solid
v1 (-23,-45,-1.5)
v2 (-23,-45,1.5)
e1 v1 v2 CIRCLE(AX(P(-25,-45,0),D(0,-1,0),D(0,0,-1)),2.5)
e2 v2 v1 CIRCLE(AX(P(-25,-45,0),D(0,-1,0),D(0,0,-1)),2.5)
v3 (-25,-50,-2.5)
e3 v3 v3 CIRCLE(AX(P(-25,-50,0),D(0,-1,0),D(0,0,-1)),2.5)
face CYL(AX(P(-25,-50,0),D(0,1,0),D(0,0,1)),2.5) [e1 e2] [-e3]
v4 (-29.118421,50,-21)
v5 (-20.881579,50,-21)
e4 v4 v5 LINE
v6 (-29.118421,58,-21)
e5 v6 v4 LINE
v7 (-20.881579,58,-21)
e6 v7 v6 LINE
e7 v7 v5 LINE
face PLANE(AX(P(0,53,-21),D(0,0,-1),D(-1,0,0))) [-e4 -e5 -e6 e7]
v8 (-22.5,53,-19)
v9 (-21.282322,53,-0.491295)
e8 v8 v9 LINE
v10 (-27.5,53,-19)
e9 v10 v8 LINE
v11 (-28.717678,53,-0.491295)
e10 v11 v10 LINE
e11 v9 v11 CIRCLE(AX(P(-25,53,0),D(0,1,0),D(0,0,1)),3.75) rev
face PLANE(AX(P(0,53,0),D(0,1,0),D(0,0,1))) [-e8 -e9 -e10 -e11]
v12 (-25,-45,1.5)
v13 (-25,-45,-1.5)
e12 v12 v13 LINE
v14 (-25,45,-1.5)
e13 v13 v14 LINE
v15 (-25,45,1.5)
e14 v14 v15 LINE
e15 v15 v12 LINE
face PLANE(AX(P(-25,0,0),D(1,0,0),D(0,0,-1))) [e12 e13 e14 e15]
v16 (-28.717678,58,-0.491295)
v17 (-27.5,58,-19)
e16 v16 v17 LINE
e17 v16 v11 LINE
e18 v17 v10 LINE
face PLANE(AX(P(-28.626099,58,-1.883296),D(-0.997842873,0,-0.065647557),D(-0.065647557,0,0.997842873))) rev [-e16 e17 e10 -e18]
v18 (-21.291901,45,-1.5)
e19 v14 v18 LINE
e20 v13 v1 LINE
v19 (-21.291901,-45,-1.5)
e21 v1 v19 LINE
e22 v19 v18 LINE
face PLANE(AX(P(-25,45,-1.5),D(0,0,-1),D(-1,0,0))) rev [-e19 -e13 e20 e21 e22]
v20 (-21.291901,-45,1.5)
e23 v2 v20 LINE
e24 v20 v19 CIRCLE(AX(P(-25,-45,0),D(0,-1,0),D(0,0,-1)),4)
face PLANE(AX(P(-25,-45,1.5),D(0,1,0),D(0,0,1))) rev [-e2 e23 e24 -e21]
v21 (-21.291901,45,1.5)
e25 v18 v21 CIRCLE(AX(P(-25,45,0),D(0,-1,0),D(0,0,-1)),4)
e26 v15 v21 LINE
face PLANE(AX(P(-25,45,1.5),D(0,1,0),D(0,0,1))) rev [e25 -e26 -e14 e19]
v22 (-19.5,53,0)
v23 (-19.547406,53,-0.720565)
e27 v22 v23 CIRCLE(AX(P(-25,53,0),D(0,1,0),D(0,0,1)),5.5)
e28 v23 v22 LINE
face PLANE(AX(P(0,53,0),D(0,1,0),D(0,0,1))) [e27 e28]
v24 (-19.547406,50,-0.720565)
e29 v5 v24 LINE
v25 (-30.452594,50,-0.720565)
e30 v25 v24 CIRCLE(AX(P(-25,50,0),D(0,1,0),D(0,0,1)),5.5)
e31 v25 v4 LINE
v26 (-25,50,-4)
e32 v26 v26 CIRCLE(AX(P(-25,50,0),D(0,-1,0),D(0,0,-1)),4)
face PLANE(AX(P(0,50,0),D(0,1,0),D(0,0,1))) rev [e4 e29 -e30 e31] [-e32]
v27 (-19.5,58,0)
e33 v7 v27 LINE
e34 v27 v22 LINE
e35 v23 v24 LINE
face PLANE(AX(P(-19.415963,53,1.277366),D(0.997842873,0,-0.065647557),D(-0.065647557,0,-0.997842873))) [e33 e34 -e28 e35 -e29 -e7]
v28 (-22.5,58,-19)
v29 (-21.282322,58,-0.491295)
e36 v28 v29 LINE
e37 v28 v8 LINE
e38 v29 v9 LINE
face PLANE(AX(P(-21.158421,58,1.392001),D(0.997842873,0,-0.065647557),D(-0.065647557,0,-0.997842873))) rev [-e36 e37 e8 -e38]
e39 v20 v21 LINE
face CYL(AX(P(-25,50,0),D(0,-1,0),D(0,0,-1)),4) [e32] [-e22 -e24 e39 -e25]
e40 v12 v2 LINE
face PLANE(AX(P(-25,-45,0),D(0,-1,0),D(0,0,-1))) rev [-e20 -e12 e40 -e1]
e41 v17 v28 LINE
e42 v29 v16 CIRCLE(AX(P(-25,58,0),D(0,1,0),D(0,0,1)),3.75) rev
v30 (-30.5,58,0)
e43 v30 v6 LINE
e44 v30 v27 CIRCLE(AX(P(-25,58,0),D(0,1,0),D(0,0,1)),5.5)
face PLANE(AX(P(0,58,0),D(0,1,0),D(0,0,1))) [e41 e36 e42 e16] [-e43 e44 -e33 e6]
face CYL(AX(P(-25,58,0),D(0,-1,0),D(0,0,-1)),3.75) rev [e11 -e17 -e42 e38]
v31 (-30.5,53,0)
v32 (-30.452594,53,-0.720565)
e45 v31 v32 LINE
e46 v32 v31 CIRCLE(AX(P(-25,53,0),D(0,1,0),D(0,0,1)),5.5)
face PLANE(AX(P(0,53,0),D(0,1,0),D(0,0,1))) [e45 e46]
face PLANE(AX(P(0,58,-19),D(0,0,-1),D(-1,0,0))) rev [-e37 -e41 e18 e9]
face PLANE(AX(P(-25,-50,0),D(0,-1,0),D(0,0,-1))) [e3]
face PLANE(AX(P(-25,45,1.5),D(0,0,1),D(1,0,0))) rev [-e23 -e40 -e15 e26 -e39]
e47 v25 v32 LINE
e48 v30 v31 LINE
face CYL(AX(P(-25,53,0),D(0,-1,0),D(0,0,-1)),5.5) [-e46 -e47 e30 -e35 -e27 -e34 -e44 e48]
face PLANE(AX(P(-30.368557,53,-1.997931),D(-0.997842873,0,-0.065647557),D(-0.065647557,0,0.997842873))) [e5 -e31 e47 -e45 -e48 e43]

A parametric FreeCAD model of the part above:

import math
import FreeCAD as App
import Part
import Sketcher
Q = App.Units.Quantity


def add_polygon(sketch, points):
    """Adds a closed chain of lines whose ends are joined by coincident constraints."""
    first, n = sketch.GeometryCount, len(points)
    for a, b in zip(points, points[1:] + points[:1]):
        sketch.addGeometry(Part.LineSegment(App.Vector(*a, 0), App.Vector(*b, 0)), False)
    for i in range(n):
        sketch.addConstraint(Sketcher.Constraint("Coincident", first + i, 2, first + (i + 1) % n, 1))

doc = App.newDocument("Part")
params = doc.addObject("Spreadsheet::Sheet", "Params")
for row, (alias, value) in enumerate([
    ("sketch1_width", "50 mm"),
    ("sketch1_height", "90 mm"),
    ("pad1_length", "3 mm"),
    ("sketch2_diameter", "8 mm"),
    ("pad2_length", "45 mm"),
    ("pad2_length2", "50 mm"),
    ("sketch3_radius", "5.5 mm"),
    ("pad3_length", "3 mm"),
    ("sketch4_radius", "5.5 mm"),
    ("sketch4_width", "5 mm"),
    ("sketch4_radius2", "3.75 mm"),
    ("pad4_length", "5 mm"),
    ("sketch5_width", "90 mm"),
    ("sketch5_height", "3 mm"),
    ("pocket1_length", "50 mm"),
    ("sketch6_diameter", "5 mm"),
    ("pad5_length", "5 mm"),
], start=1):
    params.set(f"A{row}", alias)
    params.set(f"B{row}", "=" + value)
    params.setAlias(f"B{row}", alias)

body = doc.addObject("PartDesign::Body", "Body")

# Sketch on XY plane
sketch1 = body.newObject("Sketcher::SketchObject", "Sketch")
sketch1.AttachmentSupport = (doc.getObject("XY_Plane"), [""])
sketch1.MapMode = "FlatFace"
add_polygon(sketch1, [(-25, 45), (-25, -45), (25, -45), (25, 45)])  # lines 0-3
sketch1.addConstraint([
    Sketcher.Constraint("Vertical", 0),
    Sketcher.Constraint("Horizontal", 1),
    Sketcher.Constraint("Vertical", 2),
    Sketcher.Constraint("Horizontal", 3),
    Sketcher.Constraint("Symmetric", 0, 2, 2, 2, -1, 1),
    Sketcher.Constraint("DistanceX", 1, 1, 1, 2, Q("50 mm")),
    Sketcher.Constraint("DistanceY", 0, 2, 0, 1, Q("90 mm")),
])
sketch1.setExpression("Constraints[9]", "Params.sketch1_width")
sketch1.setExpression("Constraints[10]", "Params.sketch1_height")
pad1 = body.newObject("PartDesign::Pad", "Pad")
pad1.Profile = sketch1
pad1.setExpression("Length", "Params.pad1_length")
pad1.Midplane = True

# Sketch on XZ plane
sketch2 = body.newObject("Sketcher::SketchObject", "Sketch001")
sketch2.AttachmentSupport = (doc.getObject("XZ_Plane"), [""])
sketch2.MapMode = "FlatFace"
sketch2.addGeometry(Part.Circle(App.Vector(-25, 0, 0), App.Vector(0, 0, 1), 4), False)
sketch2.addConstraint([
    Sketcher.Constraint("PointOnObject", 0, 3, -1),
    Sketcher.Constraint("Diameter", 0, Q("8 mm")),
    Sketcher.Constraint("DistanceX", 0, 3, -1, 1, Q("25 mm")),
])
sketch2.setExpression("Constraints[1]", "Params.sketch2_diameter")
pad2 = body.newObject("PartDesign::Pad", "Pad001")
pad2.Profile = sketch2
pad2.Type = "TwoLengths"
pad2.setExpression("Length", "Params.pad2_length")
pad2.setExpression("Length2", "Params.pad2_length2")

# Sketch on XZ plane
sketch3 = body.newObject("Sketcher::SketchObject", "Sketch002")
sketch3.AttachmentSupport = (doc.getObject("XZ_Plane"), [""])
sketch3.MapMode = "FlatFace"
sketch3.AttachmentOffset = App.Placement(App.Vector(0, 0, -50), App.Rotation())
sketch3.addGeometry([
    Part.ArcOfCircle(Part.Circle(App.Vector(-25, 0, 0), App.Vector(0, 0, 1), 5.5), math.radians(-7.52807), math.radians(187.52807)),
    Part.LineSegment(App.Vector(-19.547406, -0.720565, 0), App.Vector(-20.881579, -21, 0)),
    Part.LineSegment(App.Vector(-20.881579, -21, 0), App.Vector(-29.118421, -21, 0)),
    Part.LineSegment(App.Vector(-29.118421, -21, 0), App.Vector(-30.452594, -0.720565, 0)),
], False)
sketch3.addConstraint([
    Sketcher.Constraint("Coincident", 0, 1, 1, 1),
    Sketcher.Constraint("Coincident", 1, 2, 2, 1),
    Sketcher.Constraint("Coincident", 2, 2, 3, 1),
    Sketcher.Constraint("Coincident", 3, 2, 0, 2),
    Sketcher.Constraint("Horizontal", 2),
    Sketcher.Constraint("PointOnObject", 0, 3, -1),
    Sketcher.Constraint("Horizontal", 0, 1, 3, 2),
    Sketcher.Constraint("Equal", 1, 3),
    Sketcher.Constraint("Radius", 0, Q("5.5 mm")),
    Sketcher.Constraint("DistanceX", 0, 3, -1, 1, Q("25 mm")),
    Sketcher.Constraint("DistanceY", 1, 2, -1, 1, Q("21 mm")),
    Sketcher.Constraint("DistanceX", 2, 2, 2, 1, Q("8.236842 mm")),
    Sketcher.Constraint("DistanceX", 3, 2, 0, 1, Q("10.905189 mm")),
])
sketch3.setExpression("Constraints[8]", "Params.sketch3_radius")
pad3 = body.newObject("PartDesign::Pad", "Pad002")
pad3.Profile = sketch3
pad3.setExpression("Length", "Params.pad3_length")
pad3.Reversed = True

# Sketch on XZ plane
sketch4 = body.newObject("Sketcher::SketchObject", "Sketch003")
sketch4.AttachmentSupport = (doc.getObject("XZ_Plane"), [""])
sketch4.MapMode = "FlatFace"
sketch4.AttachmentOffset = App.Placement(App.Vector(0, 0, -53), App.Rotation())
sketch4.addGeometry([
    Part.LineSegment(App.Vector(-30.5, 0, 0), App.Vector(-29.118421, -21, 0)),  # 0
    Part.LineSegment(App.Vector(-29.118421, -21, 0), App.Vector(-20.881579, -21, 0)),  # 1
    Part.LineSegment(App.Vector(-20.881579, -21, 0), App.Vector(-19.5, 0, 0)),  # 2
    Part.ArcOfCircle(Part.Circle(App.Vector(-25, 0, 0), App.Vector(0, 0, 1), 5.5), math.radians(0), math.radians(180)),  # 3
    Part.LineSegment(App.Vector(-27.5, -19, 0), App.Vector(-28.717678, -0.491295, 0)),  # 4
    Part.ArcOfCircle(Part.Circle(App.Vector(-25, 0, 0), App.Vector(0, 0, 1), 3.75), math.radians(-7.52807), math.radians(187.52807)),  # 5
    Part.LineSegment(App.Vector(-21.282322, -0.491295, 0), App.Vector(-22.5, -19, 0)),  # 6
    Part.LineSegment(App.Vector(-22.5, -19, 0), App.Vector(-27.5, -19, 0)),  # 7
], False)
sketch4.addConstraint([
    Sketcher.Constraint("Coincident", 0, 2, 1, 1),
    Sketcher.Constraint("Coincident", 1, 2, 2, 1),
    Sketcher.Constraint("Coincident", 2, 2, 3, 1),
    Sketcher.Constraint("Coincident", 3, 2, 0, 1),
    Sketcher.Constraint("Coincident", 4, 2, 5, 2),
    Sketcher.Constraint("Coincident", 5, 1, 6, 1),
    Sketcher.Constraint("Coincident", 6, 2, 7, 1),
    Sketcher.Constraint("Coincident", 7, 2, 4, 1),
    Sketcher.Constraint("Horizontal", 1),
    Sketcher.Constraint("Horizontal", 7),
    Sketcher.Constraint("Coincident", 5, 3, 3, 3),
    Sketcher.Constraint("PointOnObject", 3, 3, -1),
    Sketcher.Constraint("PointOnObject", 2, 2, -1),
    Sketcher.Constraint("PointOnObject", 3, 2, -1),
    Sketcher.Constraint("Parallel", 0, 4),
    Sketcher.Constraint("Parallel", 2, 6),
    Sketcher.Constraint("Horizontal", 4, 2, 5, 1),
    Sketcher.Constraint("Equal", 0, 2),
    Sketcher.Constraint("Radius", 3, Q("5.5 mm")),
    Sketcher.Constraint("DistanceX", 7, 2, 7, 1, Q("5 mm")),
    Sketcher.Constraint("Radius", 5, Q("3.75 mm")),
    Sketcher.Constraint("DistanceX", 3, 3, -1, 1, Q("25 mm")),
    Sketcher.Constraint("DistanceY", 0, 2, -1, 1, Q("21 mm")),
    Sketcher.Constraint("DistanceY", 6, 2, -1, 1, Q("19 mm")),
    Sketcher.Constraint("DistanceX", 1, 1, 1, 2, Q("8.236842 mm")),
])
sketch4.setExpression("Constraints[18]", "Params.sketch4_radius")
sketch4.setExpression("Constraints[19]", "Params.sketch4_width")
sketch4.setExpression("Constraints[20]", "Params.sketch4_radius2")
pad4 = body.newObject("PartDesign::Pad", "Pad003")
pad4.Profile = sketch4
pad4.setExpression("Length", "Params.pad4_length")
pad4.Reversed = True

# Sketch on YZ plane
sketch5 = body.newObject("Sketcher::SketchObject", "Sketch004")
sketch5.AttachmentSupport = (doc.getObject("YZ_Plane"), [""])
sketch5.MapMode = "FlatFace"
sketch5.AttachmentOffset = App.Placement(App.Vector(0, 0, 25), App.Rotation())
add_polygon(sketch5, [(45, 1.5), (-45, 1.5), (-45, -1.5), (45, -1.5)])  # lines 0-3
sketch5.addConstraint([
    Sketcher.Constraint("Horizontal", 0),
    Sketcher.Constraint("Vertical", 1),
    Sketcher.Constraint("Horizontal", 2),
    Sketcher.Constraint("Vertical", 3),
    Sketcher.Constraint("Symmetric", 0, 2, 2, 2, -1, 1),
    Sketcher.Constraint("DistanceX", 0, 2, 0, 1, Q("90 mm")),
    Sketcher.Constraint("DistanceY", 1, 2, 1, 1, Q("3 mm")),
])
sketch5.setExpression("Constraints[9]", "Params.sketch5_width")
sketch5.setExpression("Constraints[10]", "Params.sketch5_height")
pocket1 = body.newObject("PartDesign::Pocket", "Pocket")
pocket1.Profile = sketch5
pocket1.setExpression("Length", "Params.pocket1_length")

# Sketch on XZ plane
sketch6 = body.newObject("Sketcher::SketchObject", "Sketch005")
sketch6.AttachmentSupport = (doc.getObject("XZ_Plane"), [""])
sketch6.MapMode = "FlatFace"
sketch6.AttachmentOffset = App.Placement(App.Vector(0, 0, 45), App.Rotation())
sketch6.addGeometry(Part.Circle(App.Vector(-25, 0, 0), App.Vector(0, 0, 1), 2.5), False)
sketch6.addConstraint([
    Sketcher.Constraint("PointOnObject", 0, 3, -1),
    Sketcher.Constraint("Diameter", 0, Q("5 mm")),
    Sketcher.Constraint("DistanceX", 0, 3, -1, 1, Q("25 mm")),
])
sketch6.setExpression("Constraints[1]", "Params.sketch6_diameter")
pad5 = body.newObject("PartDesign::Pad", "Pad004")
pad5.Profile = sketch6
pad5.setExpression("Length", "Params.pad5_length")

doc.recompute()
